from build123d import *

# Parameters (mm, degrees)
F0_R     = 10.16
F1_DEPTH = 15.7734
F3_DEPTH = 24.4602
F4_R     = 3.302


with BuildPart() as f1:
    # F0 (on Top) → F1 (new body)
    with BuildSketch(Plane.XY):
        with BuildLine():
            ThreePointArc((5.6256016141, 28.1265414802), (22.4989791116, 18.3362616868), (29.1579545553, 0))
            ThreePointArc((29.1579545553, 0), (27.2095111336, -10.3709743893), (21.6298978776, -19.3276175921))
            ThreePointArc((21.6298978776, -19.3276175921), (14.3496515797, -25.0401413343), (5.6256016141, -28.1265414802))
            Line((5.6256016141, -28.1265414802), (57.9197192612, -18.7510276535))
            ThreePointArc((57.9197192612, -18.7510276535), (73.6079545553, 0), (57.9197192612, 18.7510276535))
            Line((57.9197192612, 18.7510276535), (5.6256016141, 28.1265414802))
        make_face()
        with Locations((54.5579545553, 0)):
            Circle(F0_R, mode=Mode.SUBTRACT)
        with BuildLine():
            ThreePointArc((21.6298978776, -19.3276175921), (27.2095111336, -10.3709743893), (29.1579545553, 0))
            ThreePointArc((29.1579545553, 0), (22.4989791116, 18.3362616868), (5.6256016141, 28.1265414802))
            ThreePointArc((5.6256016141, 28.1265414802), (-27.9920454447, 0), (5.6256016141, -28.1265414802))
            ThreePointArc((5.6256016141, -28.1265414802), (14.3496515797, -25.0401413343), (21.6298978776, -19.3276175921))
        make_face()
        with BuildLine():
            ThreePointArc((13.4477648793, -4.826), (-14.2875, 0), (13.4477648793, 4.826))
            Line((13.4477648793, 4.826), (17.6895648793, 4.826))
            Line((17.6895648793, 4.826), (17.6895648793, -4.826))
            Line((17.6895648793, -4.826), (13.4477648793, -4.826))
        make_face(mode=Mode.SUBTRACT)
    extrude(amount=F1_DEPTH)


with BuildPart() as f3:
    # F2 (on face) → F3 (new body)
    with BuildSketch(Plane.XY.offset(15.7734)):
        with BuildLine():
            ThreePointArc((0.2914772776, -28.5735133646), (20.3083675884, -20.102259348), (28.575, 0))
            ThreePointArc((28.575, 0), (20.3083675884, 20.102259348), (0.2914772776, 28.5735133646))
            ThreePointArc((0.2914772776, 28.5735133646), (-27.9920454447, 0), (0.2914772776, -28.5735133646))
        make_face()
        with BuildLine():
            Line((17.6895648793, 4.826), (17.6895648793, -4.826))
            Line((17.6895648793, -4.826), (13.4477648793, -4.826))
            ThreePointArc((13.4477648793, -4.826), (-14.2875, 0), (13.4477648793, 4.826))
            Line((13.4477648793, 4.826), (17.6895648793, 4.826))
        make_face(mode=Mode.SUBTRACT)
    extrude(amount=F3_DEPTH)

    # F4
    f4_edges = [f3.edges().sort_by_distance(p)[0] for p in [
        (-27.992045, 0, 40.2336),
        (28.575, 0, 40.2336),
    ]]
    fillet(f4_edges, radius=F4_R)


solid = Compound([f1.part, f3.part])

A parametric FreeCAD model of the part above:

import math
import FreeCAD as App
import Part
import Sketcher

V = App.Vector
Q = App.Units.Quantity


def edges_at(feature, points):
    """Names of the edges that pass closest to the given points."""
    edges = feature.Shape.Edges
    near = lambda p: min(range(len(edges)), key=lambda i: edges[i].distToShape(Part.Vertex(*p))[0])
    return sorted({f"Edge{near(p) + 1}" for p in points})

doc = App.newDocument("Part")
body = doc.addObject("PartDesign::Body", "Body")

sketch1 = body.newObject("Sketcher::SketchObject", "Sketch")
sketch1.AttachmentSupport = (doc.getObject("XY_Plane"), [""])
sketch1.MapMode = "FlatFace"
sketch1.addGeometry([
    Part.LineSegment(V(57.9, 18.8, 0), V(5.6, 28.1, 0)),
    Part.ArcOfCircle(Part.Circle(V(0.6, 0, 0), V(0, 0, 1), 28.6), math.radians(80), math.radians(280)),
    Part.LineSegment(V(5.6, -28.1, 0), V(57.9, -18.8, 0)),
    Part.ArcOfCircle(Part.Circle(V(54.6, 0, 0), V(0, 0, 1), 19.1), math.radians(-80), math.radians(80)),
    Part.LineSegment(V(17.7, -4.8, 0), V(13.4, -4.8, 0)),
    Part.ArcOfCircle(Part.Circle(V(0, 0, 0), V(0, 0, 1), 14.3), math.radians(20), math.radians(340)),
    Part.LineSegment(V(13.4, 4.8, 0), V(17.7, 4.8, 0)),
    Part.LineSegment(V(17.7, 4.8, 0), V(17.7, -4.8, 0)),
    Part.Circle(V(54.6, 0, 0), V(0, 0, 1), 10.2),
], False)
sketch1.addConstraint([
    Sketcher.Constraint("Tangent", 0, 2, 1, 1),
    Sketcher.Constraint("Tangent", 1, 2, 2, 1),
    Sketcher.Constraint("Tangent", 2, 2, 3, 1),
    Sketcher.Constraint("Tangent", 3, 2, 0, 1),
    Sketcher.Constraint("Coincident", 4, 2, 5, 2),
    Sketcher.Constraint("Coincident", 5, 1, 6, 1),
    Sketcher.Constraint("Coincident", 6, 2, 7, 1),
    Sketcher.Constraint("Coincident", 7, 2, 4, 1),
    Sketcher.Constraint("Horizontal", 4),
    Sketcher.Constraint("Horizontal", 6),
    Sketcher.Constraint("Vertical", 7),
    Sketcher.Constraint("Coincident", 5, 3, -1, 1),
    Sketcher.Constraint("Coincident", 8, 3, 3, 3),
    Sketcher.Constraint("Symmetric", 0, 2, 1, 2, -1),
    Sketcher.Constraint("Vertical", 4, 2, 5, 1),
    Sketcher.Constraint("Diameter", 8, Q("0.8 in")),
    Sketcher.Constraint("Radius", 3, Q("0.75 in")),
    Sketcher.Constraint("Radius", 1, Q("1.125 in")),
    Sketcher.Constraint("Radius", 5, Q("0.5625 in")),
    Sketcher.Constraint("DistanceY", 7, 2, 7, 1, Q("0.38 in")),
    Sketcher.Constraint("DistanceX", 4, 2, 4, 1, Q("0.167 in")),
    Sketcher.Constraint("DistanceX", 1, 3, 3, 3, Q("2.125 in")),
    Sketcher.Constraint("DistanceX", -1, 1, 0, 2, 5.625602),
])
pad1 = body.newObject("PartDesign::Pad", "Pad")
pad1.Profile = sketch1
pad1.Length = Q("0.621 in")
body2 = doc.addObject("PartDesign::Body", "Body001")

sketch2 = body2.newObject("Sketcher::SketchObject", "Sketch001")
sketch2.AttachmentSupport = (doc.getObject("XY_Plane001"), [""])
sketch2.MapMode = "FlatFace"
sketch2.AttachmentOffset = App.Placement(V(0, 0, 0.621 * 25.4), App.Rotation())
sketch2.addGeometry([
    Part.ArcOfCircle(Part.Circle(V(0, 0, 0), V(0, 0, 1), 28.6), math.radians(-89), math.radians(89)),
    Part.ArcOfCircle(Part.Circle(V(0.6, 0, 0), V(0, 0, 1), 28.6), math.radians(91), math.radians(269)),
    Part.LineSegment(V(13.4, 4.8, 0), V(17.7, 4.8, 0)),
    Part.LineSegment(V(17.7, 4.8, 0), V(17.7, -4.8, 0)),
    Part.LineSegment(V(17.7, -4.8, 0), V(13.4, -4.8, 0)),
    Part.ArcOfCircle(Part.Circle(V(0, 0, 0), V(0, 0, 1), 14.3), math.radians(20), math.radians(340)),
], False)
sketch2.addConstraint([
    Sketcher.Constraint("Coincident", 0, 1, 1, 2),
    Sketcher.Constraint("Coincident", 1, 1, 0, 2),
    Sketcher.Constraint("Coincident", 2, 2, 3, 1),
    Sketcher.Constraint("Coincident", 3, 2, 4, 1),
    Sketcher.Constraint("Coincident", 4, 2, 5, 2),
    Sketcher.Constraint("Coincident", 5, 1, 2, 1),
    Sketcher.Constraint("Horizontal", 2),
    Sketcher.Constraint("Vertical", 3),
    Sketcher.Constraint("Horizontal", 4),
    Sketcher.Constraint("Coincident", 0, 3, -1, 1),
    Sketcher.Constraint("Coincident", 5, 3, -1, 1),
    Sketcher.Constraint("Equal", 0, 1),
    Sketcher.Constraint("PointOnObject", 1, 3, -1),
    Sketcher.Constraint("Vertical", 4, 2, 5, 1),
    Sketcher.Constraint("Radius", 0, Q("1.125 in")),
    Sketcher.Constraint("Radius", 5, Q("0.5625 in")),
    Sketcher.Constraint("DistanceY", 3, 2, 3, 1, Q("0.38 in")),
    Sketcher.Constraint("DistanceX", 2, 1, 2, 2, Q("0.167 in")),
    Sketcher.Constraint("DistanceX", 1, 3, 2, 2, 17.10661),
])
pad2 = body2.newObject("PartDesign::Pad", "Pad001")
pad2.Profile = sketch2
pad2.Length = Q("0.963 in")
doc.recompute()

fillet = body2.newObject("PartDesign::Fillet", "Fillet")
fillet.Base = (pad2, edges_at(pad2, [(-27.992, 0, 40.234), (28.575, 0, 40.234)]))
fillet.Radius = Q("0.13 in")

doc.recompute()
